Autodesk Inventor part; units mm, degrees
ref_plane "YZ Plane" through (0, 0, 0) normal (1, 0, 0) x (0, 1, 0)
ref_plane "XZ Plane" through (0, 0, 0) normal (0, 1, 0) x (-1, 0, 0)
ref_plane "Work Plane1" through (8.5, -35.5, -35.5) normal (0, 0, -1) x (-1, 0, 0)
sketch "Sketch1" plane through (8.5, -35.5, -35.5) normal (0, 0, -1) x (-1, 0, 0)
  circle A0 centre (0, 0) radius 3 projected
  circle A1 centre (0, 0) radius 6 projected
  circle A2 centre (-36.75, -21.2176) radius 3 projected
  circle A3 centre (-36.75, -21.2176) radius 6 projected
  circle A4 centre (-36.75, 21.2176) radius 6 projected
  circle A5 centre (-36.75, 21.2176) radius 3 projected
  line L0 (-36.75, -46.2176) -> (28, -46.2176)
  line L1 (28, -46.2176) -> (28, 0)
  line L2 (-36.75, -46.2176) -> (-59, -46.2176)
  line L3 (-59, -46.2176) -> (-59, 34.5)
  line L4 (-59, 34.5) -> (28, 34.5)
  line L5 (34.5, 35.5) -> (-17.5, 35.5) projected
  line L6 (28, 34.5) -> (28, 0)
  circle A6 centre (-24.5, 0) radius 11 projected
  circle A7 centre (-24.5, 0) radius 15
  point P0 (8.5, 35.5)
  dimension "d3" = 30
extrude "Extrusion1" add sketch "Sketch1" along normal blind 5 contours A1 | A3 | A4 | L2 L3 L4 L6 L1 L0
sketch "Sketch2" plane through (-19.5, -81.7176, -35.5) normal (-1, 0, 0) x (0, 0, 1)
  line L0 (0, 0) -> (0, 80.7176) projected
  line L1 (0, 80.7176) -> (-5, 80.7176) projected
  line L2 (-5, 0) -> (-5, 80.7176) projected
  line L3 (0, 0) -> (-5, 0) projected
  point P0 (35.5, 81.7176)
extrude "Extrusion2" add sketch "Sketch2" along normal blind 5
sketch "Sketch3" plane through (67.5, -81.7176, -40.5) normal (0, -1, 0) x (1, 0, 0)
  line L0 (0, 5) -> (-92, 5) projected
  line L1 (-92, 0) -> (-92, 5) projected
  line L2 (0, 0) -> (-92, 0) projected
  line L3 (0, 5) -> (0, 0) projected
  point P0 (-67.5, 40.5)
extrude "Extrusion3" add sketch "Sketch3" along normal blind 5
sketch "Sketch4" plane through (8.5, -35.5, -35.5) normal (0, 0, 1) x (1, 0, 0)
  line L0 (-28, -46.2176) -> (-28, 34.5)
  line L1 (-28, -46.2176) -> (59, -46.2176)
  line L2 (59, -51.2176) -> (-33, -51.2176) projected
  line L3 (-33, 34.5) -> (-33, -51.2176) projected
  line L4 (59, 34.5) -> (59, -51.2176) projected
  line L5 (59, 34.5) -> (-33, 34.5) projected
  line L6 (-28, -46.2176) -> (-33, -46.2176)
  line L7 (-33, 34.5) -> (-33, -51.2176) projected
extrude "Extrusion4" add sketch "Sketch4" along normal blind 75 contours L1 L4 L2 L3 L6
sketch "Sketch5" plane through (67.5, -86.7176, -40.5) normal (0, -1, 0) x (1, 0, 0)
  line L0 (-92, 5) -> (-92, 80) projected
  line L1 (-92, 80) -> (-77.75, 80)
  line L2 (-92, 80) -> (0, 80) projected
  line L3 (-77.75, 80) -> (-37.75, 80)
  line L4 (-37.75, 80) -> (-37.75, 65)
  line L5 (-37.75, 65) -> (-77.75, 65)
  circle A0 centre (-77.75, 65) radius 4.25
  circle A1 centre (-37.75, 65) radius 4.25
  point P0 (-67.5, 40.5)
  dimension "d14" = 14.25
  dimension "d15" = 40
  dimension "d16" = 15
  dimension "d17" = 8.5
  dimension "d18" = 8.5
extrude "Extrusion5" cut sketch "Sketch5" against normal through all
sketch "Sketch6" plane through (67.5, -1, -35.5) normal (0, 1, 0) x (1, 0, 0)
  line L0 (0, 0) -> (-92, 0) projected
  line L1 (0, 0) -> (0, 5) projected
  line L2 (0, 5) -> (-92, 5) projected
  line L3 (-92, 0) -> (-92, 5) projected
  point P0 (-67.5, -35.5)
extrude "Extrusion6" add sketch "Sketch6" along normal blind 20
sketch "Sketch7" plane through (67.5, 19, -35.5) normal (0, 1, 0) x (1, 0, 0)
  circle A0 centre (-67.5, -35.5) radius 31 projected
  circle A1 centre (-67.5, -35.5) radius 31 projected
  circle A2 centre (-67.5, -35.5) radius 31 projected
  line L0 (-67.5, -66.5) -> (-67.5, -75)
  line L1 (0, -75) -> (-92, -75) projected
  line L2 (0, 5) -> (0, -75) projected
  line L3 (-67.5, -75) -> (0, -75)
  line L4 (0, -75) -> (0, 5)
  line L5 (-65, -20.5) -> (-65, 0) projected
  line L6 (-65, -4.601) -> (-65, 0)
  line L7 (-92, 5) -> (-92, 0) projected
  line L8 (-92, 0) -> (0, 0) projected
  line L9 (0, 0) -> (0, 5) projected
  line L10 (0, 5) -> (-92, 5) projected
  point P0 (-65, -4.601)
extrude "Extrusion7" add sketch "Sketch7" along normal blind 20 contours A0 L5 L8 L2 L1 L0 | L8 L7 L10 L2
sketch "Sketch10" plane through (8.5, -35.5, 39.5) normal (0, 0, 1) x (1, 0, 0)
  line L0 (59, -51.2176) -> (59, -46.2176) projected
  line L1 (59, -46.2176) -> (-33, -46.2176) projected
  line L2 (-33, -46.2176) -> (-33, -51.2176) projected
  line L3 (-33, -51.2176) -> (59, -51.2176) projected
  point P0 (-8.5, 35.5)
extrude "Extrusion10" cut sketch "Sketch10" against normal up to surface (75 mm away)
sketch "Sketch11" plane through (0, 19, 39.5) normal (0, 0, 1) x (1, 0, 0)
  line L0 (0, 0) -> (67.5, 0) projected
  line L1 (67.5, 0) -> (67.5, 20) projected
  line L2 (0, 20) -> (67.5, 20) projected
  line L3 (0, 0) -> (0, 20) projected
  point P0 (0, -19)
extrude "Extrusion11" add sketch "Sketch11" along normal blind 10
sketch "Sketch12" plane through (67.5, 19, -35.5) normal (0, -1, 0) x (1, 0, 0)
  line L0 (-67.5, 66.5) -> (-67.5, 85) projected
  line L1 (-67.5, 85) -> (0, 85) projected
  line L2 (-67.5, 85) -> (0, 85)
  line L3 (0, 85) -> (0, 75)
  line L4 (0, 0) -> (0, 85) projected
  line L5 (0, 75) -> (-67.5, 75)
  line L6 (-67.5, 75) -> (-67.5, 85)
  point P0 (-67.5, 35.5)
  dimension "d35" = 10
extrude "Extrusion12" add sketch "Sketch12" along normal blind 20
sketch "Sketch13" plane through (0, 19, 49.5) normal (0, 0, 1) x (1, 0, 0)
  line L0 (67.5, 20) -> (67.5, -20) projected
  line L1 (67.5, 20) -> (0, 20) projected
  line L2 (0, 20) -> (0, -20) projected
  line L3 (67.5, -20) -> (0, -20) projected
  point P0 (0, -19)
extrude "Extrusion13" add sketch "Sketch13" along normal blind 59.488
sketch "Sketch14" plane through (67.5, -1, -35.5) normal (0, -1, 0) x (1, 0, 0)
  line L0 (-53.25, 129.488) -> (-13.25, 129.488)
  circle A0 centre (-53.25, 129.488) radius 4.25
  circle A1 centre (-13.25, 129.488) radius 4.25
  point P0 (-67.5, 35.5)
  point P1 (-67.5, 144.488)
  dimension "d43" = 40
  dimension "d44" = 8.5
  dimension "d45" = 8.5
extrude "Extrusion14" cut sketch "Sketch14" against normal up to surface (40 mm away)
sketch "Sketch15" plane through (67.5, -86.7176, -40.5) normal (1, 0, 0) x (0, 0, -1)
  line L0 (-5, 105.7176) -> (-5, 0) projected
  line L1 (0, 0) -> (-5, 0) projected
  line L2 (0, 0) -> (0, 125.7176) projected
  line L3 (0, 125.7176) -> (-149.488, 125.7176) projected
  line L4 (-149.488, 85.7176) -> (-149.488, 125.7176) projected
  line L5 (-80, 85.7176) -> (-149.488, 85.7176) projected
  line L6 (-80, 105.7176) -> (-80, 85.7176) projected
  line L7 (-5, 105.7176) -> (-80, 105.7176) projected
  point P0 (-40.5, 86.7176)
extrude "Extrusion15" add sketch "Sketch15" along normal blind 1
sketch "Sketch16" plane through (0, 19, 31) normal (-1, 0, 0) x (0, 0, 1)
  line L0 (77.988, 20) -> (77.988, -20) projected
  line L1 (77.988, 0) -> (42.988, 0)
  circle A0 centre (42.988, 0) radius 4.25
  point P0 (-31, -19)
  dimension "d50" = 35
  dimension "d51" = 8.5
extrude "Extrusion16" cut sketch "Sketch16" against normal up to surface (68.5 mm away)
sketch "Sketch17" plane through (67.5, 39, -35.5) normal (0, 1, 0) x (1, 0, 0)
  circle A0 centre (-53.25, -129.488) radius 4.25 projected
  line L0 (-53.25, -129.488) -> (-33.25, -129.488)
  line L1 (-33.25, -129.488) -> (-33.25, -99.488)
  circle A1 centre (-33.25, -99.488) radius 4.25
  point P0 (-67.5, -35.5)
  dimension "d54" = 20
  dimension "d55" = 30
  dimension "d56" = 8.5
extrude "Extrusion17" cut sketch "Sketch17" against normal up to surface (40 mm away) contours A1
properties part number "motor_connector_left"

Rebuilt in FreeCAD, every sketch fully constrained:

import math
import FreeCAD as App
import Part
import Sketcher

V = App.Vector
Q = App.Units.Quantity


def add_polygon(sketch, points):
    """Adds a closed chain of lines whose ends are joined by coincident constraints."""
    first, n = sketch.GeometryCount, len(points)
    for a, b in zip(points, points[1:] + points[:1]):
        sketch.addGeometry(Part.LineSegment(App.Vector(*a, 0), App.Vector(*b, 0)), False)
    for i in range(n):
        sketch.addConstraint(Sketcher.Constraint("Coincident", first + i, 2, first + (i + 1) % n, 1))

doc = App.newDocument("Part")
body = doc.addObject("PartDesign::Body", "Body")

# Sketch on XY plane
sketch1 = body.newObject("Sketcher::SketchObject", "Sketch")
sketch1.AttachmentSupport = (doc.getObject("XY_Plane"), [""])
sketch1.MapMode = "FlatFace"
sketch1.AttachmentOffset = App.Placement(V(0, 0, -35.5), App.Rotation())
add_polygon(sketch1, [(67.5, -81.7), (-19.5, -81.7), (-19.5, -1), (67.5, -1)])  # lines 0-3
sketch1.addGeometry(Part.Circle(V(8.5, -35.5, 0), V(0, 0, 1), 3), False)  # 4
sketch1.addGeometry(Part.Circle(V(33, -35.5, 0), V(0, 0, 1), 15), False)  # 5
sketch1.addGeometry(Part.Circle(V(45.2, -56.7, 0), V(0, 0, 1), 3), False)  # 6
sketch1.addGeometry(Part.Circle(V(45.2, -14.3, 0), V(0, 0, 1), 3), False)  # 7
sketch1.addConstraint(Sketcher.Constraint("Horizontal", 0))
sketch1.addConstraint(Sketcher.Constraint("Vertical", 1))
sketch1.addConstraint(Sketcher.Constraint("Horizontal", 2))
sketch1.addConstraint(Sketcher.Constraint("Vertical", 3))
sketch1.addConstraint(Sketcher.Constraint("Equal", 4, 6))
sketch1.addConstraint(Sketcher.Constraint("Equal", 6, 7))
sketch1.addConstraint(Sketcher.Constraint("Horizontal", 4, 3, 5, 3))
sketch1.addConstraint(Sketcher.Constraint("Vertical", 6, 3, 7, 3))
sketch1.addConstraint(Sketcher.Constraint("Diameter", 5, Q("30 mm")))
sketch1.addConstraint(Sketcher.Constraint("Diameter", 4, Q("6 mm")))
sketch1.addConstraint(Sketcher.Constraint("DistanceX", 0, 2, 0, 1, Q("87 mm")))
sketch1.addConstraint(Sketcher.Constraint("DistanceX", -1, 1, 5, 3, Q("33 mm")))
sketch1.addConstraint(Sketcher.Constraint("DistanceY", 1, 2, -1, 1, Q("1 mm")))
sketch1.addConstraint(Sketcher.Constraint("DistanceX", 0, 2, 4, 3, Q("28 mm")))
sketch1.addConstraint(Sketcher.Constraint("DistanceY", 0, 2, 6, 3, Q("25 mm")))
sketch1.addConstraint(Sketcher.Constraint("DistanceX", -1, 1, 4, 3, Q("8.5 mm")))
sketch1.addConstraint(Sketcher.Constraint("DistanceY", 4, 3, -1, 1, Q("35.5 mm")))
sketch1.addConstraint(Sketcher.Constraint("DistanceX", -1, 1, 6, 3, Q("45.25 mm")))
sketch1.addConstraint(Sketcher.Constraint("DistanceY", 1, 1, 1, 2, Q("80.7176 mm")))
sketch1.addConstraint(Sketcher.Constraint("DistanceY", 7, 3, -1, 1, Q("14.2824 mm")))
pad1 = body.newObject("PartDesign::Pad", "Pad")
pad1.Profile = sketch1
pad1.Length = 5
pad1.Reversed = True

# Sketch on YZ plane
sketch2 = body.newObject("Sketcher::SketchObject", "Sketch001")
sketch2.AttachmentSupport = (doc.getObject("YZ_Plane"), [""])
sketch2.MapMode = "FlatFace"
sketch2.AttachmentOffset = App.Placement(V(0, 0, -19.5), App.Rotation())
add_polygon(sketch2, [(-82, -40), (-82, -36), (-1, -36), (-1, -40)])  # lines 0-3
sketch2.addConstraint(Sketcher.Constraint("Vertical", 0))
sketch2.addConstraint(Sketcher.Constraint("Horizontal", 1))
sketch2.addConstraint(Sketcher.Constraint("Vertical", 2))
sketch2.addConstraint(Sketcher.Constraint("Horizontal", 3))
sketch2.addConstraint(Sketcher.Constraint("DistanceY", 0, 1, 0, 2, Q("5 mm")))
sketch2.addConstraint(Sketcher.Constraint("DistanceX", 1, 2, -1, 1, Q("1 mm")))
sketch2.addConstraint(Sketcher.Constraint("DistanceY", 0, 2, -1, 1, Q("35.5 mm")))
sketch2.addConstraint(Sketcher.Constraint("DistanceX", 1, 1, 1, 2, Q("80.7176 mm")))
pad2 = body.newObject("PartDesign::Pad", "Pad001")
pad2.Profile = sketch2
pad2.Length = 5
pad2.Reversed = True

# Sketch on XZ plane
sketch3 = body.newObject("Sketcher::SketchObject", "Sketch002")
sketch3.AttachmentSupport = (doc.getObject("XZ_Plane"), [""])
sketch3.MapMode = "FlatFace"
sketch3.AttachmentOffset = App.Placement(V(0, 0, 81.7176), App.Rotation())
add_polygon(sketch3, [(68, -40), (68, -36), (-24, -36), (-24, -40)])  # lines 0-3
sketch3.addConstraint(Sketcher.Constraint("Vertical", 0))
sketch3.addConstraint(Sketcher.Constraint("Horizontal", 1))
sketch3.addConstraint(Sketcher.Constraint("Vertical", 2))
sketch3.addConstraint(Sketcher.Constraint("Horizontal", 3))
sketch3.addConstraint(Sketcher.Constraint("DistanceX", 1, 2, 1, 1, Q("92 mm")))
sketch3.addConstraint(Sketcher.Constraint("DistanceY", 0, 1, 0, 2, Q("5 mm")))
sketch3.addConstraint(Sketcher.Constraint("DistanceX", -1, 1, 0, 2, Q("67.5 mm")))
sketch3.addConstraint(Sketcher.Constraint("DistanceY", 0, 2, -1, 1, Q("35.5 mm")))
pad3 = body.newObject("PartDesign::Pad", "Pad002")
pad3.Profile = sketch3
pad3.Length = 5

# Sketch on XY plane
sketch4 = body.newObject("Sketcher::SketchObject", "Sketch003")
sketch4.AttachmentSupport = (doc.getObject("XY_Plane"), [""])
sketch4.MapMode = "FlatFace"
sketch4.AttachmentOffset = App.Placement(V(0, 0, -35.5), App.Rotation())
add_polygon(sketch4, [(68, -82), (-24, -82), (-24, -87), (68, -87)])  # lines 0-3
sketch4.addConstraint(Sketcher.Constraint("Horizontal", 0))
sketch4.addConstraint(Sketcher.Constraint("Vertical", 1))
sketch4.addConstraint(Sketcher.Constraint("Horizontal", 2))
sketch4.addConstraint(Sketcher.Constraint("Vertical", 3))
sketch4.addConstraint(Sketcher.Constraint("DistanceX", 0, 2, 0, 1, Q("92 mm")))
sketch4.addConstraint(Sketcher.Constraint("DistanceY", 1, 2, 1, 1, Q("5 mm")))
sketch4.addConstraint(Sketcher.Constraint("DistanceX", 0, 2, -1, 1, Q("24.5 mm")))
sketch4.addConstraint(Sketcher.Constraint("DistanceY", 0, 2, -1, 1, Q("81.7176 mm")))
pad4 = body.newObject("PartDesign::Pad", "Pad003")
pad4.Profile = sketch4
pad4.Length = 75

# Sketch on XZ plane
sketch5 = body.newObject("Sketcher::SketchObject", "Sketch004")
sketch5.AttachmentSupport = (doc.getObject("XZ_Plane"), [""])
sketch5.MapMode = "FlatFace"
sketch5.AttachmentOffset = App.Placement(V(0, 0, 86.7176), App.Rotation())
sketch5.addGeometry(Part.Circle(V(29.8, 24.5, 0), V(0, 0, 1), 4.2), False)
sketch5.addGeometry(Part.Circle(V(-10.2, 24.5, 0), V(0, 0, 1), 4.2), False)
sketch5.addConstraint(Sketcher.Constraint("Equal", 0, 1))
sketch5.addConstraint(Sketcher.Constraint("Horizontal", 0, 3, 1, 3))
sketch5.addConstraint(Sketcher.Constraint("Diameter", 0, Q("8.5 mm")))
sketch5.addConstraint(Sketcher.Constraint("DistanceX", 1, 3, 0, 3, Q("40 mm")))
sketch5.addConstraint(Sketcher.Constraint("DistanceY", -1, 1, 0, 3, Q("24.5 mm")))
sketch5.addConstraint(Sketcher.Constraint("DistanceX", -1, 1, 0, 3, Q("29.75 mm")))
pocket1 = body.newObject("PartDesign::Pocket", "Pocket")
pocket1.Profile = sketch5
pocket1.Type = "ThroughAll"

# Sketch on XZ plane
sketch6 = body.newObject("Sketcher::SketchObject", "Sketch005")
sketch6.AttachmentSupport = (doc.getObject("XZ_Plane"), [""])
sketch6.MapMode = "FlatFace"
sketch6.AttachmentOffset = App.Placement(V(0, 0, 1), App.Rotation())
add_polygon(sketch6, [(-24, -36), (68, -36), (68, -40), (-24, -40)])  # lines 0-3
sketch6.addConstraint(Sketcher.Constraint("Horizontal", 0))
sketch6.addConstraint(Sketcher.Constraint("Vertical", 1))
sketch6.addConstraint(Sketcher.Constraint("Horizontal", 2))
sketch6.addConstraint(Sketcher.Constraint("Vertical", 3))
sketch6.addConstraint(Sketcher.Constraint("DistanceX", 0, 1, 0, 2, Q("92 mm")))
sketch6.addConstraint(Sketcher.Constraint("DistanceY", 1, 2, 1, 1, Q("5 mm")))
sketch6.addConstraint(Sketcher.Constraint("DistanceX", -1, 1, 0, 2, Q("67.5 mm")))
sketch6.addConstraint(Sketcher.Constraint("DistanceY", 0, 2, -1, 1, Q("35.5 mm")))
pad5 = body.newObject("PartDesign::Pad", "Pad004")
pad5.Profile = sketch6
pad5.Length = 20
pad5.Reversed = True

# Sketch on XZ plane
sketch7 = body.newObject("Sketcher::SketchObject", "Sketch006")
sketch7.AttachmentSupport = (doc.getObject("XZ_Plane"), [""])
sketch7.MapMode = "FlatFace"
sketch7.AttachmentOffset = App.Placement(V(0, 0, -19), App.Rotation())
sketch7.addGeometry(Part.ArcOfCircle(Part.Circle(V(0, 0, 0), V(0, 0, 1), 31), math.radians(-85), math.radians(90)), False)
sketch7.addGeometry(Part.LineSegment(V(0, 31, 0), V(0, 39.5, 0)), False)
sketch7.addGeometry(Part.LineSegment(V(0, 39.5, 0), V(67.5, 39.5, 0)), False)
sketch7.addGeometry(Part.LineSegment(V(67.5, 39.5, 0), V(67.5, -40.5, 0)), False)
sketch7.addGeometry(Part.LineSegment(V(67.5, -40.5, 0), V(-24.5, -40.5, 0)), False)
sketch7.addGeometry(Part.LineSegment(V(-24.5, -40.5, 0), V(-24.5, -35.5, 0)), False)
sketch7.addGeometry(Part.LineSegment(V(-24.5, -35.5, 0), V(2.5, -35.5, 0)), False)
sketch7.addGeometry(Part.LineSegment(V(2.5, -35.5, 0), V(2.5, -30.9, 0)), False)
sketch7.addConstraint(Sketcher.Constraint("Coincident", 0, 2, 1, 1))
sketch7.addConstraint(Sketcher.Constraint("Coincident", 1, 2, 2, 1))
sketch7.addConstraint(Sketcher.Constraint("Coincident", 2, 2, 3, 1))
sketch7.addConstraint(Sketcher.Constraint("Coincident", 3, 2, 4, 1))
sketch7.addConstraint(Sketcher.Constraint("Coincident", 4, 2, 5, 1))
sketch7.addConstraint(Sketcher.Constraint("Coincident", 5, 2, 6, 1))
sketch7.addConstraint(Sketcher.Constraint("Coincident", 6, 2, 7, 1))
sketch7.addConstraint(Sketcher.Constraint("Coincident", 7, 2, 0, 1))
sketch7.addConstraint(Sketcher.Constraint("Vertical", 1))
sketch7.addConstraint(Sketcher.Constraint("Horizontal", 2))
sketch7.addConstraint(Sketcher.Constraint("Vertical", 3))
sketch7.addConstraint(Sketcher.Constraint("Horizontal", 4))
sketch7.addConstraint(Sketcher.Constraint("Vertical", 5))
sketch7.addConstraint(Sketcher.Constraint("Horizontal", 6))
sketch7.addConstraint(Sketcher.Constraint("Vertical", 7))
sketch7.addConstraint(Sketcher.Constraint("Coincident", 0, 3, -1, 1))
sketch7.addConstraint(Sketcher.Constraint("PointOnObject", 0, 2, -2))
sketch7.addConstraint(Sketcher.Constraint("Radius", 0, Q("31 mm")))
sketch7.addConstraint(Sketcher.Constraint("DistanceX", 4, 2, 4, 1, Q("92 mm")))
sketch7.addConstraint(Sketcher.Constraint("DistanceX", 6, 1, 6, 2, Q("27 mm")))
sketch7.addConstraint(Sketcher.Constraint("DistanceY", 3, 2, 3, 1, Q("80 mm")))
sketch7.addConstraint(Sketcher.Constraint("DistanceY", 5, 1, 5, 2, Q("5 mm")))
sketch7.addConstraint(Sketcher.Constraint("DistanceX", 2, 1, 2, 2, Q("67.5 mm")))
sketch7.addConstraint(Sketcher.Constraint("DistanceY", 1, 1, 1, 2, Q("8.5 mm")))
pad6 = body.newObject("PartDesign::Pad", "Pad005")
pad6.Profile = sketch7
pad6.Length = 20
pad6.Reversed = True

# Sketch on XY plane
sketch8 = body.newObject("Sketcher::SketchObject", "Sketch007")
sketch8.AttachmentSupport = (doc.getObject("XY_Plane"), [""])
sketch8.MapMode = "FlatFace"
sketch8.AttachmentOffset = App.Placement(V(0, 0, 39.5), App.Rotation())
add_polygon(sketch8, [(-24, -87), (68, -87), (68, -82), (-24, -82)])  # lines 0-3
sketch8.addConstraint(Sketcher.Constraint("Horizontal", 0))
sketch8.addConstraint(Sketcher.Constraint("Vertical", 1))
sketch8.addConstraint(Sketcher.Constraint("Horizontal", 2))
sketch8.addConstraint(Sketcher.Constraint("Vertical", 3))
sketch8.addConstraint(Sketcher.Constraint("DistanceX", 0, 1, 0, 2, Q("92 mm")))
sketch8.addConstraint(Sketcher.Constraint("DistanceY", 1, 1, 1, 2, Q("5 mm")))
sketch8.addConstraint(Sketcher.Constraint("DistanceX", -1, 1, 0, 2, Q("67.5 mm")))
sketch8.addConstraint(Sketcher.Constraint("DistanceY", 0, 2, -1, 1, Q("86.7176 mm")))
pocket2 = body.newObject("PartDesign::Pocket", "Pocket001")
pocket2.Profile = sketch8
pocket2.Length = 75

# Sketch on XY plane
sketch9 = body.newObject("Sketcher::SketchObject", "Sketch008")
sketch9.AttachmentSupport = (doc.getObject("XY_Plane"), [""])
sketch9.MapMode = "FlatFace"
sketch9.AttachmentOffset = App.Placement(V(0, 0, 39.5), App.Rotation())
add_polygon(sketch9, [(0, 39), (0, 19), (68, 19), (68, 39)])  # lines 0-3
sketch9.addConstraint(Sketcher.Constraint("Vertical", 0))
sketch9.addConstraint(Sketcher.Constraint("Horizontal", 1))
sketch9.addConstraint(Sketcher.Constraint("Vertical", 2))
sketch9.addConstraint(Sketcher.Constraint("Horizontal", 3))
sketch9.addConstraint(Sketcher.Constraint("PointOnObject", 0, 2, -2))
sketch9.addConstraint(Sketcher.Constraint("DistanceY", 0, 2, 0, 1, Q("20 mm")))
sketch9.addConstraint(Sketcher.Constraint("DistanceX", 1, 1, 1, 2, Q("67.5 mm")))
sketch9.addConstraint(Sketcher.Constraint("DistanceY", -1, 1, 0, 2, Q("19 mm")))
pad7 = body.newObject("PartDesign::Pad", "Pad006")
pad7.Profile = sketch9
pad7.Length = 10

# Sketch on XZ plane
sketch10 = body.newObject("Sketcher::SketchObject", "Sketch009")
sketch10.AttachmentSupport = (doc.getObject("XZ_Plane"), [""])
sketch10.MapMode = "FlatFace"
sketch10.AttachmentOffset = App.Placement(V(0, 0, -19), App.Rotation())
add_polygon(sketch10, [(0, 50), (0, 40), (68, 40), (68, 50)])  # lines 0-3
sketch10.addConstraint(Sketcher.Constraint("Vertical", 0))
sketch10.addConstraint(Sketcher.Constraint("Horizontal", 1))
sketch10.addConstraint(Sketcher.Constraint("Vertical", 2))
sketch10.addConstraint(Sketcher.Constraint("Horizontal", 3))
sketch10.addConstraint(Sketcher.Constraint("PointOnObject", 0, 2, -2))
sketch10.addConstraint(Sketcher.Constraint("DistanceY", 0, 2, 0, 1, Q("10 mm")))
sketch10.addConstraint(Sketcher.Constraint("DistanceX", 1, 1, 1, 2, Q("67.5 mm")))
sketch10.addConstraint(Sketcher.Constraint("DistanceY", -1, 1, 0, 2, Q("39.5 mm")))
pad8 = body.newObject("PartDesign::Pad", "Pad007")
pad8.Profile = sketch10
pad8.Length = 20

# Sketch on XY plane
sketch11 = body.newObject("Sketcher::SketchObject", "Sketch010")
sketch11.AttachmentSupport = (doc.getObject("XY_Plane"), [""])
sketch11.MapMode = "FlatFace"
sketch11.AttachmentOffset = App.Placement(V(0, 0, 49.5), App.Rotation())
add_polygon(sketch11, [(68, -1), (68, 39), (0, 39), (0, -1)])  # lines 0-3
sketch11.addConstraint(Sketcher.Constraint("Vertical", 0))
sketch11.addConstraint(Sketcher.Constraint("Horizontal", 1))
sketch11.addConstraint(Sketcher.Constraint("Vertical", 2))
sketch11.addConstraint(Sketcher.Constraint("Horizontal", 3))
sketch11.addConstraint(Sketcher.Constraint("PointOnObject", 1, 2, -2))
sketch11.addConstraint(Sketcher.Constraint("DistanceY", 0, 1, 0, 2, Q("40 mm")))
sketch11.addConstraint(Sketcher.Constraint("DistanceX", 1, 2, 1, 1, Q("67.5 mm")))
sketch11.addConstraint(Sketcher.Constraint("DistanceY", -1, 1, 0, 2, Q("39 mm")))
pad9 = body.newObject("PartDesign::Pad", "Pad008")
pad9.Profile = sketch11
pad9.Length = 59.488

# Sketch on XZ plane
sketch12 = body.newObject("Sketcher::SketchObject", "Sketch011")
sketch12.AttachmentSupport = (doc.getObject("XZ_Plane"), [""])
sketch12.MapMode = "FlatFace"
sketch12.AttachmentOffset = App.Placement(V(0, 0, 1), App.Rotation())
sketch12.addGeometry(Part.Circle(V(54.2, 94, 0), V(0, 0, 1), 4.2), False)
sketch12.addGeometry(Part.Circle(V(14.2, 94, 0), V(0, 0, 1), 4.2), False)
sketch12.addConstraint(Sketcher.Constraint("Equal", 0, 1))
sketch12.addConstraint(Sketcher.Constraint("Horizontal", 0, 3, 1, 3))
sketch12.addConstraint(Sketcher.Constraint("Diameter", 0, Q("8.5 mm")))
sketch12.addConstraint(Sketcher.Constraint("DistanceX", 1, 3, 0, 3, Q("40 mm")))
sketch12.addConstraint(Sketcher.Constraint("DistanceX", -1, 1, 0, 3, Q("54.25 mm")))
sketch12.addConstraint(Sketcher.Constraint("DistanceY", -1, 1, 0, 3, Q("93.988 mm")))
pocket3 = body.newObject("PartDesign::Pocket", "Pocket002")
pocket3.Profile = sketch12
pocket3.Length = 40

# Sketch on YZ plane
sketch13 = body.newObject("Sketcher::SketchObject", "Sketch012")
sketch13.AttachmentSupport = (doc.getObject("YZ_Plane"), [""])
sketch13.MapMode = "FlatFace"
sketch13.AttachmentOffset = App.Placement(V(0, 0, 67.5), App.Rotation())
add_polygon(sketch13, [(19, 40), (19, -36), (-87, -36), (-87, -40), (39, -40), (39, 109), (-1, 109), (-1, 40)])  # lines 0-7
sketch13.addConstraint(Sketcher.Constraint("Vertical", 0))
sketch13.addConstraint(Sketcher.Constraint("Horizontal", 1))
sketch13.addConstraint(Sketcher.Constraint("Vertical", 2))
sketch13.addConstraint(Sketcher.Constraint("Horizontal", 3))
sketch13.addConstraint(Sketcher.Constraint("Vertical", 4))
sketch13.addConstraint(Sketcher.Constraint("Horizontal", 5))
sketch13.addConstraint(Sketcher.Constraint("Vertical", 6))
sketch13.addConstraint(Sketcher.Constraint("Horizontal", 7))
sketch13.addConstraint(Sketcher.Constraint("DistanceX", 5, 2, 5, 1, Q("40 mm")))
sketch13.addConstraint(Sketcher.Constraint("DistanceX", 7, 1, 7, 2, Q("20 mm")))
sketch13.addConstraint(Sketcher.Constraint("DistanceY", 0, 2, 0, 1, Q("75 mm")))
sketch13.addConstraint(Sketcher.Constraint("DistanceY", 2, 2, 2, 1, Q("5 mm")))
sketch13.addConstraint(Sketcher.Constraint("DistanceX", -1, 1, 0, 2, Q("19 mm")))
sketch13.addConstraint(Sketcher.Constraint("DistanceY", 0, 2, -1, 1, Q("35.5 mm")))
sketch13.addConstraint(Sketcher.Constraint("DistanceY", 4, 1, 4, 2, Q("149.488 mm")))
sketch13.addConstraint(Sketcher.Constraint("DistanceX", 1, 2, 1, 1, Q("105.7176 mm")))
pad10 = body.newObject("PartDesign::Pad", "Pad009")
pad10.Profile = sketch13
pad10.Length = 1

# Sketch on YZ plane
sketch14 = body.newObject("Sketcher::SketchObject", "Sketch013")
sketch14.AttachmentSupport = (doc.getObject("YZ_Plane"), [""])
sketch14.MapMode = "FlatFace"
sketch14.addGeometry(Part.Circle(V(19, 74, 0), V(0, 0, 1), 4.2), False)
sketch14.addConstraint(Sketcher.Constraint("Diameter", 0, Q("8.5 mm")))
sketch14.addConstraint(Sketcher.Constraint("DistanceX", -1, 1, 0, 3, Q("19 mm")))
sketch14.addConstraint(Sketcher.Constraint("DistanceY", -1, 1, 0, 3, Q("73.988 mm")))
pocket4 = body.newObject("PartDesign::Pocket", "Pocket003")
pocket4.Profile = sketch14
pocket4.Length = 68.5
pocket4.Reversed = True

# Sketch on XZ plane
sketch15 = body.newObject("Sketcher::SketchObject", "Sketch014")
sketch15.AttachmentSupport = (doc.getObject("XZ_Plane"), [""])
sketch15.MapMode = "FlatFace"
sketch15.AttachmentOffset = App.Placement(V(0, 0, -39), App.Rotation())
sketch15.addGeometry(Part.Circle(V(34.2, 64, 0), V(0, 0, 1), 4.2), False)
sketch15.addConstraint(Sketcher.Constraint("Diameter", 0, Q("8.5 mm")))
sketch15.addConstraint(Sketcher.Constraint("DistanceX", -1, 1, 0, 3, Q("34.25 mm")))
sketch15.addConstraint(Sketcher.Constraint("DistanceY", -1, 1, 0, 3, Q("63.988 mm")))
pocket5 = body.newObject("PartDesign::Pocket", "Pocket004")
pocket5.Profile = sketch15
pocket5.Length = 40
pocket5.Reversed = True

doc.recompute()
